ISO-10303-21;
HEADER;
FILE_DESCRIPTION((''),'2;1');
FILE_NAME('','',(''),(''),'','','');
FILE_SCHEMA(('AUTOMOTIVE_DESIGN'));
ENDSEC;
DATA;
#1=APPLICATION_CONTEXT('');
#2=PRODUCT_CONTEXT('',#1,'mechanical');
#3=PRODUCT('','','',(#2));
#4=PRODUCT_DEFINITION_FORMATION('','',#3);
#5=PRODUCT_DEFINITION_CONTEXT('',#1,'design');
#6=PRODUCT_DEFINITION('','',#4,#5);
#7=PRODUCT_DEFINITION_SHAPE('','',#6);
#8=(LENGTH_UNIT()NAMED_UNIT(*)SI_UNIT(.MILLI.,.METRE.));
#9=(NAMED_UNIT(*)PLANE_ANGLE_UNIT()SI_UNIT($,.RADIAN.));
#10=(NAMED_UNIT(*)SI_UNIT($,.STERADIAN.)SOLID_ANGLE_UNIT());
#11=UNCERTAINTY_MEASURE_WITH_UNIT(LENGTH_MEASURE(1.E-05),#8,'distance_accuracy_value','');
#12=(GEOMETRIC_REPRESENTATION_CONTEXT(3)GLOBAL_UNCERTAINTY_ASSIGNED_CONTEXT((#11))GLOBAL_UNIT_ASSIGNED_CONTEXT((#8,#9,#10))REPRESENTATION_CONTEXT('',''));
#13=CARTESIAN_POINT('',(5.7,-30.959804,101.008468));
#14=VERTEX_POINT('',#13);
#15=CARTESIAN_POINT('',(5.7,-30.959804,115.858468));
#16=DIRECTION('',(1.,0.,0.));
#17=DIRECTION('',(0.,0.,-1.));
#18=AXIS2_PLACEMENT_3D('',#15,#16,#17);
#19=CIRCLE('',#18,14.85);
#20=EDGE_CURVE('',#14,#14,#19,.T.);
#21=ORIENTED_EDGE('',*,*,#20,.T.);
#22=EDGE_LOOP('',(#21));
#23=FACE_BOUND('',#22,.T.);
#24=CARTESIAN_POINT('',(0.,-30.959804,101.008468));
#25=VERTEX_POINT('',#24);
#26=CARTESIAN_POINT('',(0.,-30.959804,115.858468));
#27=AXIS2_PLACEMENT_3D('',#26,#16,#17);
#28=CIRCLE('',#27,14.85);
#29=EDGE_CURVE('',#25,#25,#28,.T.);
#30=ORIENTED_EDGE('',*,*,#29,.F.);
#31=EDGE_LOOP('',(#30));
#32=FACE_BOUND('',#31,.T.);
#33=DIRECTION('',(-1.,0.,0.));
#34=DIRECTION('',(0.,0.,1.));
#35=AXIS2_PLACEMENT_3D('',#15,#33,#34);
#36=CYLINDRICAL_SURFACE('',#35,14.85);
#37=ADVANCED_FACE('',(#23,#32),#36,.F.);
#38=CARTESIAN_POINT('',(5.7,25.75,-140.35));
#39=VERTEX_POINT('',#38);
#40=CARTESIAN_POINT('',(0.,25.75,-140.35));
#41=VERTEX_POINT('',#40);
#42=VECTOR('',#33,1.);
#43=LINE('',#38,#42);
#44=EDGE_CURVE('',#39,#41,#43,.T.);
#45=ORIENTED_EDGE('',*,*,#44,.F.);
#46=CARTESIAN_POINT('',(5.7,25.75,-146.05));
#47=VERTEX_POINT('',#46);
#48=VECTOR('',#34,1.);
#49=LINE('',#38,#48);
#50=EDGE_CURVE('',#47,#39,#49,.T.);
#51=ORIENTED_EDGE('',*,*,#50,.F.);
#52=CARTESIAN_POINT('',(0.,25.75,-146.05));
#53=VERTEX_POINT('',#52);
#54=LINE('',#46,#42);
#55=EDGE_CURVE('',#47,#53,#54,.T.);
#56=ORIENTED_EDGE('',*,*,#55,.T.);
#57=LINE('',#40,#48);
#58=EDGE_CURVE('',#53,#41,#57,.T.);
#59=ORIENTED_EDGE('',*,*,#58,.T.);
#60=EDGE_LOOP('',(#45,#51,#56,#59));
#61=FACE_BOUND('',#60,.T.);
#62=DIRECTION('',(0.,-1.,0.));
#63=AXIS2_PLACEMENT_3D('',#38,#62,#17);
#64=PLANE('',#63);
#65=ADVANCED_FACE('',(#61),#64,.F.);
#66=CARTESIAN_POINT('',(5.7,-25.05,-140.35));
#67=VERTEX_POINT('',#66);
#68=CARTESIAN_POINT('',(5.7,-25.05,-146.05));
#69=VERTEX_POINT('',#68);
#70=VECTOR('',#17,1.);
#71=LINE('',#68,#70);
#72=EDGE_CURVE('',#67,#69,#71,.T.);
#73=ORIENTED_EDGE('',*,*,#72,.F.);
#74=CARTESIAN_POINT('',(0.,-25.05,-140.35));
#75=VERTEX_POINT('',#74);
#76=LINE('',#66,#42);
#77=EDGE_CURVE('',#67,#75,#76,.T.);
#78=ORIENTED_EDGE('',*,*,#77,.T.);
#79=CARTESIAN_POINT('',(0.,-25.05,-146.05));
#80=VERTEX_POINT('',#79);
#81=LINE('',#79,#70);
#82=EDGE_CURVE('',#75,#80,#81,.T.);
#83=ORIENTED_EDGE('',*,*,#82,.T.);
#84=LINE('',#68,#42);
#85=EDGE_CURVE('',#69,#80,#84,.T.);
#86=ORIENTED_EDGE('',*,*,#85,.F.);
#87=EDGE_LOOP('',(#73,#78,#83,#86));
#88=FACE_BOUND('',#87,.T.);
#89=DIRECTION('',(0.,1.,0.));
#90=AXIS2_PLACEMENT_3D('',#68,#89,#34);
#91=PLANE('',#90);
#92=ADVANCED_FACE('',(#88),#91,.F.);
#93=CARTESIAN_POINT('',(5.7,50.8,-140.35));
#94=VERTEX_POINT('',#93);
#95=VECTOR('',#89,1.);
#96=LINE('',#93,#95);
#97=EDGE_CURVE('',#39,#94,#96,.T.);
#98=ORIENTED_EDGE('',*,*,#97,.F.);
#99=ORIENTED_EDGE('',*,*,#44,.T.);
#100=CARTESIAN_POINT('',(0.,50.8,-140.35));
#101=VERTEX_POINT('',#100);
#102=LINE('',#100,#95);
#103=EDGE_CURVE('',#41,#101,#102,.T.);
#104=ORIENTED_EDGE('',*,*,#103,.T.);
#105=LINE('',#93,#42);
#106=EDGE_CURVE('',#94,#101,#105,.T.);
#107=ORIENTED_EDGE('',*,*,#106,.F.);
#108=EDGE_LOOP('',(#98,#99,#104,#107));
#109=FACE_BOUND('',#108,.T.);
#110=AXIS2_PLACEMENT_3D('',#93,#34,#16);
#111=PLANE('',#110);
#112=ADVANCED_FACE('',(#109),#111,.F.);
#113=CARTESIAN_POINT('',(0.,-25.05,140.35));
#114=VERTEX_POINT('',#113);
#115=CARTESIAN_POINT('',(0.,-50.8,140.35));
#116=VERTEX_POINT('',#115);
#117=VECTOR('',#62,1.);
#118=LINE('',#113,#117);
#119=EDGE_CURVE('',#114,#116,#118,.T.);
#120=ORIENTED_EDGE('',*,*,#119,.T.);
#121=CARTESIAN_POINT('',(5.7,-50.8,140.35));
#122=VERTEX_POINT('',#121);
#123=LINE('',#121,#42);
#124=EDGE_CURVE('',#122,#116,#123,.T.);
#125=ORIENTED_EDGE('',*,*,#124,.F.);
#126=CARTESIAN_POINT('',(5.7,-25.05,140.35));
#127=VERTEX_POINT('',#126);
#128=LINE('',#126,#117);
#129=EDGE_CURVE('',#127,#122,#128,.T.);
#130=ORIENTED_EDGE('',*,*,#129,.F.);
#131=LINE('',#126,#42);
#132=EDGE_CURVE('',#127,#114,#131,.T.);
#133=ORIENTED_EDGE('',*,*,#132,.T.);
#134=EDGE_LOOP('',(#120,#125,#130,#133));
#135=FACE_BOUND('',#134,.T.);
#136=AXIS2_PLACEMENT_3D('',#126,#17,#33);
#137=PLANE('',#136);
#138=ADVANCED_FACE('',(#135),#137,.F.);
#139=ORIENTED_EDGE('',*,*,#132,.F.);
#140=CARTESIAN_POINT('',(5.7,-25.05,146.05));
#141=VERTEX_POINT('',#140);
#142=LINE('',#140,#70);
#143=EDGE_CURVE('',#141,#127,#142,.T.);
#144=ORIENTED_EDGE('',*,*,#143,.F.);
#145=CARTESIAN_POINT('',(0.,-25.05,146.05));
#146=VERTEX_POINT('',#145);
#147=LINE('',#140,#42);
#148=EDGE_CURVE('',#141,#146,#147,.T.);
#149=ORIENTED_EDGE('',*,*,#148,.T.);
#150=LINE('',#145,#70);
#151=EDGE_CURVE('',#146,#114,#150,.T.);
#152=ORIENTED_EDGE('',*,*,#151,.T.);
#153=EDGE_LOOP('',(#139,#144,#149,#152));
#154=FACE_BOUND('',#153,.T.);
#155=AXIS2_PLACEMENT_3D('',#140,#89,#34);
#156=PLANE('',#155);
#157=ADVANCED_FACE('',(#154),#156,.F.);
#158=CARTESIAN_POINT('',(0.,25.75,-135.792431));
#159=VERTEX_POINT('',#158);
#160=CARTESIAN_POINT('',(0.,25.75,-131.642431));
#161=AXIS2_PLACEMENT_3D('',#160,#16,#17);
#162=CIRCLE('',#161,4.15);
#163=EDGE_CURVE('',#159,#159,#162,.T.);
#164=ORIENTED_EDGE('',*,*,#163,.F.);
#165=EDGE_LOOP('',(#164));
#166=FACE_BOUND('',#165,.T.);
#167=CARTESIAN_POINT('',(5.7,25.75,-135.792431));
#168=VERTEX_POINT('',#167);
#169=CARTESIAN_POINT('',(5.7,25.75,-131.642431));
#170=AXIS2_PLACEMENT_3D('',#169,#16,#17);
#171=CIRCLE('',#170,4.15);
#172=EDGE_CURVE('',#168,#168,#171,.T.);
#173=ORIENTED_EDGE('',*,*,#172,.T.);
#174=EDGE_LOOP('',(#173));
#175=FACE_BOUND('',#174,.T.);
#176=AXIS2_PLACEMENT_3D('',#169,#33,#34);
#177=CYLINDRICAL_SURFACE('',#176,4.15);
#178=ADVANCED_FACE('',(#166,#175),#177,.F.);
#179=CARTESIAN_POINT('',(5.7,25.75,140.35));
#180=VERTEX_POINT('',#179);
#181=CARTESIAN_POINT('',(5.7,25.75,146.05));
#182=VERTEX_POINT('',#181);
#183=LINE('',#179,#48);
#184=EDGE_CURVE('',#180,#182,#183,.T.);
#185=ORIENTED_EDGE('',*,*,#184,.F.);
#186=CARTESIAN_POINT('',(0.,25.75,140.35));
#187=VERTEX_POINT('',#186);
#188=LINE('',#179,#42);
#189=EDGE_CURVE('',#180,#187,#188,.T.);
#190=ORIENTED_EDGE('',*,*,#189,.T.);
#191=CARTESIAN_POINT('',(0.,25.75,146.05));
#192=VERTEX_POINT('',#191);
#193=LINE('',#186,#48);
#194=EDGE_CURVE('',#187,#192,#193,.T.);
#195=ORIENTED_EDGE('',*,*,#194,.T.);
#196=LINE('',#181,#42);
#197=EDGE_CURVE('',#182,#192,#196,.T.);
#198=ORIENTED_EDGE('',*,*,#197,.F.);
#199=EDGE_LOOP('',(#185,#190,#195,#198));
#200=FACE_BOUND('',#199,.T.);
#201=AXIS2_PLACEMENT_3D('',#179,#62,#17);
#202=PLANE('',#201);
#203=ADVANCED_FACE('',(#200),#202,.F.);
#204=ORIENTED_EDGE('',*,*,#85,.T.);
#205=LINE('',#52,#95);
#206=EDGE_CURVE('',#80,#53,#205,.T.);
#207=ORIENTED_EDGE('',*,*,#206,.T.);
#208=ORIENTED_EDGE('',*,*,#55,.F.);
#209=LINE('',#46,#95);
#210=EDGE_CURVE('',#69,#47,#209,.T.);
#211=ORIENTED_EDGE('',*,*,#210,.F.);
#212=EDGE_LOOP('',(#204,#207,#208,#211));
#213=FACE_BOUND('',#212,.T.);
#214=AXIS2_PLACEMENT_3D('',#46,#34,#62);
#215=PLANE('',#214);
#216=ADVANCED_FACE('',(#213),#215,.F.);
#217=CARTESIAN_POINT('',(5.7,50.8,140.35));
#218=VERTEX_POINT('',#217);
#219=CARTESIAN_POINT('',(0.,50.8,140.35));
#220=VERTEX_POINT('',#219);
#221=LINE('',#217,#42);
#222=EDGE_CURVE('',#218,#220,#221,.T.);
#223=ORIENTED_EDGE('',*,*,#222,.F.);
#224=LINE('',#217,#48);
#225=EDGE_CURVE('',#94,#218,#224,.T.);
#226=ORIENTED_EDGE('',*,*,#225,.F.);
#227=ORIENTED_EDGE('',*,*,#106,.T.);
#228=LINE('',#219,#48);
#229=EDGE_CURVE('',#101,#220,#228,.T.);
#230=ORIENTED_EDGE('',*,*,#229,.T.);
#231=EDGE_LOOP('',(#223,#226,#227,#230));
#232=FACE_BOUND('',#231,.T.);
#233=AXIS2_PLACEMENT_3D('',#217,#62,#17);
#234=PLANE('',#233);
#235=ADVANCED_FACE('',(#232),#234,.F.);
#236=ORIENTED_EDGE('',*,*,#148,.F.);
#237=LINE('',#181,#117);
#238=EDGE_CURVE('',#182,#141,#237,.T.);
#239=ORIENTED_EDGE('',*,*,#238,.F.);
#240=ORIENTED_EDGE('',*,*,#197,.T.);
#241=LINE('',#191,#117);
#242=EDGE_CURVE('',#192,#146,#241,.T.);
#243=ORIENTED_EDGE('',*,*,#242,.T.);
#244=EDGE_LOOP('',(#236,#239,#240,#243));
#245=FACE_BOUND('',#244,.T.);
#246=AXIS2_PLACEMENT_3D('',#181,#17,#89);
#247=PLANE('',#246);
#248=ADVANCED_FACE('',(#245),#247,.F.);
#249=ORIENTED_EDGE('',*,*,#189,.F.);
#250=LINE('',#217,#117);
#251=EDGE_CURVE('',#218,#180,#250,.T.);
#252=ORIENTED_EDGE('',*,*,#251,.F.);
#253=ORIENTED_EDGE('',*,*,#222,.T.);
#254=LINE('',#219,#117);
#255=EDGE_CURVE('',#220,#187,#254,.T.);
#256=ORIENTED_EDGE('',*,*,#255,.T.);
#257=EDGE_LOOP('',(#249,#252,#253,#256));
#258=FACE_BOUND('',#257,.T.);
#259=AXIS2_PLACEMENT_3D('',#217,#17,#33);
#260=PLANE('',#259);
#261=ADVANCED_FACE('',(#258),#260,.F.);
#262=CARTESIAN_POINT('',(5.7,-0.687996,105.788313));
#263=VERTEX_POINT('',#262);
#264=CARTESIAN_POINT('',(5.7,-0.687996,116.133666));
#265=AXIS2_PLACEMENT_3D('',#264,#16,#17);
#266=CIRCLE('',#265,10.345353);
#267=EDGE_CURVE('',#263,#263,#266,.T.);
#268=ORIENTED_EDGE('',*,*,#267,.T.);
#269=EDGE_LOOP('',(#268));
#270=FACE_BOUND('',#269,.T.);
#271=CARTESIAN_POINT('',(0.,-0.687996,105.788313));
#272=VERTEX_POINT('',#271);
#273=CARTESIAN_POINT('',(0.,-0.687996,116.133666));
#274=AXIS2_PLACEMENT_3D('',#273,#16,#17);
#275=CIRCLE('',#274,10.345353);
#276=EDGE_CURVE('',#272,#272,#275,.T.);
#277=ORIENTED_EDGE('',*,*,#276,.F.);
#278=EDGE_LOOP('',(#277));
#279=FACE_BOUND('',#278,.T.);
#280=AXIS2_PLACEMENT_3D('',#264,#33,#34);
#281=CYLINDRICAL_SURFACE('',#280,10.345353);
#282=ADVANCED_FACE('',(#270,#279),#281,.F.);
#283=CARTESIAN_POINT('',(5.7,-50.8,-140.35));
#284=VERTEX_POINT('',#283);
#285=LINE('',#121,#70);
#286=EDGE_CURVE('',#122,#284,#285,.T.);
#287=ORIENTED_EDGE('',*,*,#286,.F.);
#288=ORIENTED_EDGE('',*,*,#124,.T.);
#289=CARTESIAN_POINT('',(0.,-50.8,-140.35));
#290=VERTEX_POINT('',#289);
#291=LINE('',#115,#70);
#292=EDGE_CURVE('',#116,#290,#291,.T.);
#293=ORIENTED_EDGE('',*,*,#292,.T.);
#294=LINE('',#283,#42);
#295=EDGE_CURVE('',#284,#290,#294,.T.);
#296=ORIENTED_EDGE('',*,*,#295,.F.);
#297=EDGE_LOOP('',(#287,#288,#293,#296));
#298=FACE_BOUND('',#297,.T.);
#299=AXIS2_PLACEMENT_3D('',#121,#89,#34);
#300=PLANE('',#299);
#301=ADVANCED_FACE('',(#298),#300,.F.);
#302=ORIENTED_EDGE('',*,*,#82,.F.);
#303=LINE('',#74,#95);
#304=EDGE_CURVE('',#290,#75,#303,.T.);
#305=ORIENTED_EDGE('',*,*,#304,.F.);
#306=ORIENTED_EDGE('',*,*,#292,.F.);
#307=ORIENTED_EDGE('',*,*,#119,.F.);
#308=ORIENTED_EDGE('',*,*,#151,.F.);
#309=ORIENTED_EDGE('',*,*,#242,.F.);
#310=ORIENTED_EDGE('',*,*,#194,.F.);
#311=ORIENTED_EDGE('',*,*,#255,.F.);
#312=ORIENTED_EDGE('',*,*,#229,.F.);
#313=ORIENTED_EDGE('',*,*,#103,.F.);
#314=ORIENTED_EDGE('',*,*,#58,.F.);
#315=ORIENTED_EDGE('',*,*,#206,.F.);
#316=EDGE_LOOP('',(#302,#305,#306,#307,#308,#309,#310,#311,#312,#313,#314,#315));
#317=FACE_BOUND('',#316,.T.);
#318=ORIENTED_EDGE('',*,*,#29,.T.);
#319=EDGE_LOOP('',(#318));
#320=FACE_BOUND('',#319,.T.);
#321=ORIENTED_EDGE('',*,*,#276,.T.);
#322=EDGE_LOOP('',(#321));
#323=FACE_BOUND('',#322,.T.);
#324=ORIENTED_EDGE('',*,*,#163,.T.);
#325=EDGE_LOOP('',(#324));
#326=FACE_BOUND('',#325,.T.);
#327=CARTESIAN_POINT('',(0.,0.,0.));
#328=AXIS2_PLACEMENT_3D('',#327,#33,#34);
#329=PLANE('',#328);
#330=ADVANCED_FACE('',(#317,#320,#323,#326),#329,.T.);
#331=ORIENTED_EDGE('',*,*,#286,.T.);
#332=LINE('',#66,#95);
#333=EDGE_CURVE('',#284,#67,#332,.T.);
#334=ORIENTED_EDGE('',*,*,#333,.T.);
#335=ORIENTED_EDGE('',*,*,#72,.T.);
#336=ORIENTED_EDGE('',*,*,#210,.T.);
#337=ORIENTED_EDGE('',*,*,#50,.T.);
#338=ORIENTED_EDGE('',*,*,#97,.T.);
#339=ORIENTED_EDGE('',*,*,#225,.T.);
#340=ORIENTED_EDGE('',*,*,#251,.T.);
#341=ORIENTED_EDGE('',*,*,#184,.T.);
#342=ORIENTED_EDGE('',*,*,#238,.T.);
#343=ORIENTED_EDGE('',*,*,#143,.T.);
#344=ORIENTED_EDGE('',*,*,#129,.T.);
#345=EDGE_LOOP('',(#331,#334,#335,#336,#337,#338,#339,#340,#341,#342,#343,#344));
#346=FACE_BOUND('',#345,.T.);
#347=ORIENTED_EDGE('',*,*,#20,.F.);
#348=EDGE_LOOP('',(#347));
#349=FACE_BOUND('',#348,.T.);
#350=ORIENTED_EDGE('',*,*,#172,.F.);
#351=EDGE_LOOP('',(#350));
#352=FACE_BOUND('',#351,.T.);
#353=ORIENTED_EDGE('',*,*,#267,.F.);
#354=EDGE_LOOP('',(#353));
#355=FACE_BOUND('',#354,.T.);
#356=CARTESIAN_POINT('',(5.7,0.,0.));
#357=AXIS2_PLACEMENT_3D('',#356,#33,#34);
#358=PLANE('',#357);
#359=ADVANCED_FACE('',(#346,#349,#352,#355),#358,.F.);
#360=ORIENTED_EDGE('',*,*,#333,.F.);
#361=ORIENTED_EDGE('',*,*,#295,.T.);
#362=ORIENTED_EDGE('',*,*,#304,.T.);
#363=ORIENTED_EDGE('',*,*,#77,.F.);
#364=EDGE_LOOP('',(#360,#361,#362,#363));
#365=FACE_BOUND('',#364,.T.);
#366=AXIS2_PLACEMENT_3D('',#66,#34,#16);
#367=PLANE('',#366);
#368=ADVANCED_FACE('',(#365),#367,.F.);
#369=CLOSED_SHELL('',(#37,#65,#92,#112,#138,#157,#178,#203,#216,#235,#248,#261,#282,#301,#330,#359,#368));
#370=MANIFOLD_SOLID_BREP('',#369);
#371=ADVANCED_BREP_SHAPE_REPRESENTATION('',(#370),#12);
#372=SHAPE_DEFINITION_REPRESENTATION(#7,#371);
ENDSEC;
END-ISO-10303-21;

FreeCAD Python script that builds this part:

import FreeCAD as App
import Part
import Sketcher

V = App.Vector
Q = App.Units.Quantity


def add_polygon(sketch, points):
    """Adds a closed chain of lines whose ends are joined by coincident constraints."""
    first, n = sketch.GeometryCount, len(points)
    for a, b in zip(points, points[1:] + points[:1]):
        sketch.addGeometry(Part.LineSegment(App.Vector(*a, 0), App.Vector(*b, 0)), False)
    for i in range(n):
        sketch.addConstraint(Sketcher.Constraint("Coincident", first + i, 2, first + (i + 1) % n, 1))

doc = App.newDocument("Part")
body = doc.addObject("PartDesign::Body", "Body")

sketch1 = body.newObject("Sketcher::SketchObject", "Sketch")
sketch1.AttachmentSupport = (doc.getObject("YZ_Plane"), [""])
sketch1.MapMode = "FlatFace"
add_polygon(sketch1, [(50.8, -140.3), (50.8, 140.3), (25.8, 140.3), (25.8, 146.1), (-25.1, 146.1), (-25.1, 140.3), (-50.8, 140.3), (-50.8, -140.3), (-25.1, -140.3), (-25.1, -146.1), (25.8, -146.1), (25.8, -140.3)])
sketch1.addGeometry(Part.Circle(V(-31, 115.9, 0), V(0, 0, 1), 14.8), False)
sketch1.addGeometry(Part.Circle(V(25.8, -131.6, 0), V(0, 0, 1), 4.2), False)
sketch1.addGeometry(Part.Circle(V(-0.7, 116.1, 0), V(0, 0, 1), 10.3), False)
sketch1.addConstraint([
    Sketcher.Constraint("Vertical", 0),
    Sketcher.Constraint("Horizontal", 1),
    Sketcher.Constraint("Vertical", 2),
    Sketcher.Constraint("Horizontal", 3),
    Sketcher.Constraint("Vertical", 4),
    Sketcher.Constraint("Horizontal", 5),
    Sketcher.Constraint("Vertical", 6),
    Sketcher.Constraint("Horizontal", 7),
    Sketcher.Constraint("Vertical", 8),
    Sketcher.Constraint("Horizontal", 9),
    Sketcher.Constraint("Vertical", 10),
    Sketcher.Constraint("Horizontal", 11),
    Sketcher.Constraint("Symmetric", 0, 2, 6, 2, -1, 1),
    Sketcher.Constraint("Symmetric", 4, 2, 7, 2, -1),
    Sketcher.Constraint("Symmetric", 2, 2, 9, 2, -1),
    Sketcher.Constraint("Horizontal", 7, 2, 10, 2),
    Sketcher.Constraint("Vertical", 13, 3, 1, 2),
    Sketcher.Constraint("Diameter", 12, Q("29.7 mm")),
    Sketcher.Constraint("Diameter", 13, Q("8.3 mm")),
    Sketcher.Constraint("DistanceX", 3, 2, 3, 1, Q("50.8 mm")),
    Sketcher.Constraint("DistanceY", 0, 1, 0, 2, Q("280.7 mm")),
    Sketcher.Constraint("DistanceY", 2, 1, 2, 2, Q("5.7 mm")),
    Sketcher.Constraint("DistanceX", 1, 2, 1, 1, Q("25.05 mm")),
    Sketcher.Constraint("DistanceX", 5, 2, 5, 1, Q("25.75 mm")),
    Sketcher.Constraint("Diameter", 14, Q("20.690706 mm")),
    Sketcher.Constraint("DistanceY", 13, 3, 12, 3, Q("247.500899 mm")),
    Sketcher.Constraint("DistanceY", 12, 3, 14, 3, Q("0.275198 mm")),
    Sketcher.Constraint("DistanceY", 13, 3, -1, 1, Q("131.642431 mm")),
    Sketcher.Constraint("DistanceX", 12, 3, 14, 3, Q("30.271809 mm")),
    Sketcher.Constraint("DistanceX", 12, 3, -1, 1, Q("30.959804 mm")),
])
pad1 = body.newObject("PartDesign::Pad", "Pad")
pad1.Profile = sketch1
pad1.Length = 5.7

doc.recompute()
